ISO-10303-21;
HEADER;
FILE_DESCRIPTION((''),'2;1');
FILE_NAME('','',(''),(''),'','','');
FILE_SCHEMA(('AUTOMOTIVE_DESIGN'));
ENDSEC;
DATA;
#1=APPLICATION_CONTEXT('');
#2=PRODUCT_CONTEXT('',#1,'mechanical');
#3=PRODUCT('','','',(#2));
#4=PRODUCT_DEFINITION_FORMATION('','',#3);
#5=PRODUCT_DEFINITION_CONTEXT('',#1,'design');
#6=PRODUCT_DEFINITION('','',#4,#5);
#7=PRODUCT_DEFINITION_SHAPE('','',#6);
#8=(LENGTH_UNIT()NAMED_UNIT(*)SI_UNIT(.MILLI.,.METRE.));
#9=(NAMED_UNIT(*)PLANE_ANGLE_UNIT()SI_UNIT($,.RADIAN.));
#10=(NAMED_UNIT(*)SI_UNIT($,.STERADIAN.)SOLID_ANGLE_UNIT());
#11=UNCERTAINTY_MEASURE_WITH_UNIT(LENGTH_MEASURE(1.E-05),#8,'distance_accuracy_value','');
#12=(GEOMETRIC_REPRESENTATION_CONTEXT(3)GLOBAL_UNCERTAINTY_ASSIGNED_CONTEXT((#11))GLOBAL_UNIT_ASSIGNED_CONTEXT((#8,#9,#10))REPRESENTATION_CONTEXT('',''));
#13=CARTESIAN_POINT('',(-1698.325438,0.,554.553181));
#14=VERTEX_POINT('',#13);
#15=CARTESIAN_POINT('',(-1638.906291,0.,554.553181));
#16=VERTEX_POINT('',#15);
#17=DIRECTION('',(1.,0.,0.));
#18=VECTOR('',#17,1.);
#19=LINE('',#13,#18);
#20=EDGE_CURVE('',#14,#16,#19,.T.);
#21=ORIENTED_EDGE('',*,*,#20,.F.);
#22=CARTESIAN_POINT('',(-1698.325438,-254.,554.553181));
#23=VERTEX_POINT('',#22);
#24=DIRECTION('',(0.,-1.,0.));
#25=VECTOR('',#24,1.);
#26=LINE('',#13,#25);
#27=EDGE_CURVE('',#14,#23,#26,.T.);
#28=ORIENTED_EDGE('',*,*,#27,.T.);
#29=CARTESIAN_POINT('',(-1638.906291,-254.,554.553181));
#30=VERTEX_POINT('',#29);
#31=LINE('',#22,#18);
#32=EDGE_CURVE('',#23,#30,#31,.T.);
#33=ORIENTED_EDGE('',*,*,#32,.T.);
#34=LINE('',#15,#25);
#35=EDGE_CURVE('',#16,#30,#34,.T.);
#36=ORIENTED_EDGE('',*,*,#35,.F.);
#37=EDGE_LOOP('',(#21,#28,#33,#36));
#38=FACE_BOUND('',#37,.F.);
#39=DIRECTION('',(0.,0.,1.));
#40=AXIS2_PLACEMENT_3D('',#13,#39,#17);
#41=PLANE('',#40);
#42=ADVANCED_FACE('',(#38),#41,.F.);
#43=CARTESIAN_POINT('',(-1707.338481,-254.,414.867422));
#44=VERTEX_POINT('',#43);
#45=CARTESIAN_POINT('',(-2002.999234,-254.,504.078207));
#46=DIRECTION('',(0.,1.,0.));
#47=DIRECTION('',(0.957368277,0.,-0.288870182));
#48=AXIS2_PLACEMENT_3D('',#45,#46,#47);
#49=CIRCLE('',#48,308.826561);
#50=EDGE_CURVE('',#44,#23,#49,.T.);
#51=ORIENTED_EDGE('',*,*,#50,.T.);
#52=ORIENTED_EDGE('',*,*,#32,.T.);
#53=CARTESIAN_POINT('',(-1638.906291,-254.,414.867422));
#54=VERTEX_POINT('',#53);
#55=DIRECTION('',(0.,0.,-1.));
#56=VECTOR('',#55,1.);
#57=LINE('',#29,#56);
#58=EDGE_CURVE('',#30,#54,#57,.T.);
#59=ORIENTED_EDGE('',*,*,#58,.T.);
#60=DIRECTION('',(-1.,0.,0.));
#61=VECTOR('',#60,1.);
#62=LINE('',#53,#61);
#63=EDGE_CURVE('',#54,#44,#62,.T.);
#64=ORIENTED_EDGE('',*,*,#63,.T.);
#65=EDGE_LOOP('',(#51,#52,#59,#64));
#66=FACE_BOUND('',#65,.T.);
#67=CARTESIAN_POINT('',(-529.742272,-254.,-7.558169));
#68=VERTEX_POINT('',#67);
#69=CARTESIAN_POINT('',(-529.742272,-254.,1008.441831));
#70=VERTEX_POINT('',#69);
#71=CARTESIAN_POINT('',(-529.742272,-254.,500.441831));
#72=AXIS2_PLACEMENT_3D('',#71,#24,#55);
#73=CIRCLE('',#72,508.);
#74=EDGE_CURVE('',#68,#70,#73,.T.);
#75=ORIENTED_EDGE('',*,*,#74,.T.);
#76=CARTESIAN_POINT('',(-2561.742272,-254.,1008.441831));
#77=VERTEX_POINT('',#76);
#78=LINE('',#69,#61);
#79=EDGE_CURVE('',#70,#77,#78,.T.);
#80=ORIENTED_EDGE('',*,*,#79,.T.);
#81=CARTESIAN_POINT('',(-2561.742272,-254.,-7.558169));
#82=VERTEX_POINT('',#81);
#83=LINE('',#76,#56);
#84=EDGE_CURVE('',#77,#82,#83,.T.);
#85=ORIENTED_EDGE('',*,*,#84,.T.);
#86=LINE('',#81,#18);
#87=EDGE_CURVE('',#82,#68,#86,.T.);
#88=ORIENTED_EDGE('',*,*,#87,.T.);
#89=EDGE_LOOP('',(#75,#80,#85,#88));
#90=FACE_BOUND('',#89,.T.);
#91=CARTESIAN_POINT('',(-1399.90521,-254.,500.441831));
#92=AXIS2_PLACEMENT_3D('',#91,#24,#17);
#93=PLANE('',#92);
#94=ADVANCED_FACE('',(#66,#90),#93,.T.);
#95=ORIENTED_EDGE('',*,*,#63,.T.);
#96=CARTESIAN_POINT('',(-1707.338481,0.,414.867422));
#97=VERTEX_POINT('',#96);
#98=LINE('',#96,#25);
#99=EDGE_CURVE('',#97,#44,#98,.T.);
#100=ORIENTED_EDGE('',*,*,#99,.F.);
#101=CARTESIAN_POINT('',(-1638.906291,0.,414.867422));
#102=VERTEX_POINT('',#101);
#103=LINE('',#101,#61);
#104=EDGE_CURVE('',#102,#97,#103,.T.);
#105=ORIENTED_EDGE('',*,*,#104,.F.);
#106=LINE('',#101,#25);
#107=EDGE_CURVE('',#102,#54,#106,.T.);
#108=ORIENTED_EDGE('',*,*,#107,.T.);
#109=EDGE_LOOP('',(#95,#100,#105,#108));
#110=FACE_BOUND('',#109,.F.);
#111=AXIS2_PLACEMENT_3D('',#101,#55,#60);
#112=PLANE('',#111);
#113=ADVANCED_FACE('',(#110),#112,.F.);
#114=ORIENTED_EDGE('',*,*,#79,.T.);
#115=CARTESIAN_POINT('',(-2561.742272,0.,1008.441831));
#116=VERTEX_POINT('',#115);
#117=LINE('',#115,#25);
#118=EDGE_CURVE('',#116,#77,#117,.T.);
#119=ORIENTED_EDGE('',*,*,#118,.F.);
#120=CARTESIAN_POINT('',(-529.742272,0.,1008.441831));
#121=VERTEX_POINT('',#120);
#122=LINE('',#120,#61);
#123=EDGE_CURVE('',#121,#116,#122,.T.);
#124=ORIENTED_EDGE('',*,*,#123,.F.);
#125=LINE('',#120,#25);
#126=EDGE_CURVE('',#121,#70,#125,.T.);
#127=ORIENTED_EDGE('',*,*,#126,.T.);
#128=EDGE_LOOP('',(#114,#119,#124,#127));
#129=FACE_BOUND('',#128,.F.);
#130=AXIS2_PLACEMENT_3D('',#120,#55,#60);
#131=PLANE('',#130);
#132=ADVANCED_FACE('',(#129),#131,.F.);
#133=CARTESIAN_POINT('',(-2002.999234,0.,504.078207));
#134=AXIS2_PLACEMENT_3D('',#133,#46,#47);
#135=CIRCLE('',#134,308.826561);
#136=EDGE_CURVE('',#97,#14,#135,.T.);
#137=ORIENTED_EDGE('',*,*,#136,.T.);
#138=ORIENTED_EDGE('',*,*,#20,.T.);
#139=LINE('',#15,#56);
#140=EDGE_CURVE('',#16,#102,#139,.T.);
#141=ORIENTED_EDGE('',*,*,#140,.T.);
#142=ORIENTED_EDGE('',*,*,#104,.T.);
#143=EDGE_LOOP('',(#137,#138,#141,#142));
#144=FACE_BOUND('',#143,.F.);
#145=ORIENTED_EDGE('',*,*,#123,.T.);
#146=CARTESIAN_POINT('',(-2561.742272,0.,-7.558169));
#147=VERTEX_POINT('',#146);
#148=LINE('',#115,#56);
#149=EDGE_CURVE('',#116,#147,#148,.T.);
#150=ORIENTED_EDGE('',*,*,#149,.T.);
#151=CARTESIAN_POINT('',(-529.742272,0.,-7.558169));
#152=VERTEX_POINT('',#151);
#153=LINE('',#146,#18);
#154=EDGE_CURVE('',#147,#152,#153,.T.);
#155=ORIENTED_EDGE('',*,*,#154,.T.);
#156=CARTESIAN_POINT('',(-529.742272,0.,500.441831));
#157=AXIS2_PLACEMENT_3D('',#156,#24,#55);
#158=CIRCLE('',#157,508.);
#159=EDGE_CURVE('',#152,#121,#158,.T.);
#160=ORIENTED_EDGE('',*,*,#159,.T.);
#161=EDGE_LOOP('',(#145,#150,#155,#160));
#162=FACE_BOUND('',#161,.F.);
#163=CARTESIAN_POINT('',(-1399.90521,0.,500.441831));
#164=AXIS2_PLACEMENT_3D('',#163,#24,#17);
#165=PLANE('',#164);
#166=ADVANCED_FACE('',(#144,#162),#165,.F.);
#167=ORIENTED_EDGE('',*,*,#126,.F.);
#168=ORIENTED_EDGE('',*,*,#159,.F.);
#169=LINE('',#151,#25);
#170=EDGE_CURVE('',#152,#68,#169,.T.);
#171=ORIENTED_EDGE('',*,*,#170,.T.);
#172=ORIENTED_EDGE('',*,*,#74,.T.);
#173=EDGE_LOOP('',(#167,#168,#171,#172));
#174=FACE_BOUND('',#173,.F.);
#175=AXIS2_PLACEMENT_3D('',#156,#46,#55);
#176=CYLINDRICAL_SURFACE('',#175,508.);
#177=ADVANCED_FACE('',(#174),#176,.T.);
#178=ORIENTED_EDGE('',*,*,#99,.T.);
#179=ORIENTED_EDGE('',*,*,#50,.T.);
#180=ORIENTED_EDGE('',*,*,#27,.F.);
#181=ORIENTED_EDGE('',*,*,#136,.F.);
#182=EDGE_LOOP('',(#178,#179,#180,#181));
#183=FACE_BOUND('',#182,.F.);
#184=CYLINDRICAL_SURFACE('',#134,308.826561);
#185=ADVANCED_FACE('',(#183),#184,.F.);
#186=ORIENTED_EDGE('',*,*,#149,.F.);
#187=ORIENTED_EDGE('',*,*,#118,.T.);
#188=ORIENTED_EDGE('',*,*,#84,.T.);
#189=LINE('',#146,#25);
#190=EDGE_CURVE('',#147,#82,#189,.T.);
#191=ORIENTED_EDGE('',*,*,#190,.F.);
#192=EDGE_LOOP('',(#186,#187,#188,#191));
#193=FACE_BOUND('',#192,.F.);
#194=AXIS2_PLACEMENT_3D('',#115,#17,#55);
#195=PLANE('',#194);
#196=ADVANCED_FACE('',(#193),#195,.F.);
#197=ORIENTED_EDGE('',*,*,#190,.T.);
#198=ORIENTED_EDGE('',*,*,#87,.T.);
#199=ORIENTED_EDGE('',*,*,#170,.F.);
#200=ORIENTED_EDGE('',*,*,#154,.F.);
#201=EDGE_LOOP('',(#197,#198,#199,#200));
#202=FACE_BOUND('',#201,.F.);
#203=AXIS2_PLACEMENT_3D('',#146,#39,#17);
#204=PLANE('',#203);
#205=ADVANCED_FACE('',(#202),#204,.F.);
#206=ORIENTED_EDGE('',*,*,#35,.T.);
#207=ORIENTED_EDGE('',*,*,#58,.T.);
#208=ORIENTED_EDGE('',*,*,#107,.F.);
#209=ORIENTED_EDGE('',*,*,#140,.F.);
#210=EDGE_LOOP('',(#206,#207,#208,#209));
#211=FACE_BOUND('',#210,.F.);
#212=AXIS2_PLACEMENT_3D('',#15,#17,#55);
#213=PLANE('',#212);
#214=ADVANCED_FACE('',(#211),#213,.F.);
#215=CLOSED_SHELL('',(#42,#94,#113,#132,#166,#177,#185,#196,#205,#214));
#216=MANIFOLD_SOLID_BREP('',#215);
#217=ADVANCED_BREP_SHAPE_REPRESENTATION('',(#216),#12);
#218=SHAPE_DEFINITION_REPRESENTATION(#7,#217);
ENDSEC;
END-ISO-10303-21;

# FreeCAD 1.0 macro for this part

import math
import FreeCAD as App
import Part
import Sketcher

V = App.Vector
Q = App.Units.Quantity

doc = App.newDocument("Part")
body = doc.addObject("PartDesign::Body", "Body")

# Sketch on XZ plane
sketch1 = body.newObject("Sketcher::SketchObject", "Sketch")
sketch1.AttachmentSupport = (doc.getObject("XZ_Plane"), [""])
sketch1.MapMode = "FlatFace"
sketch1.addGeometry(Part.LineSegment(V(-2562, -8, 0), V(-530, -8, 0)), False)
sketch1.addGeometry(Part.ArcOfCircle(Part.Circle(V(-530, 500, 0), V(0, 0, 1), 508), math.radians(-90), math.radians(90)), False)
sketch1.addGeometry(Part.LineSegment(V(-530, 1008, 0), V(-2562, 1008, 0)), False)
sketch1.addGeometry(Part.LineSegment(V(-2562, 1008, 0), V(-2562, -8, 0)), False)
sketch1.addGeometry(Part.LineSegment(V(-1639, 415, 0), V(-1707, 415, 0)), False)
sketch1.addGeometry(Part.ArcOfCircle(Part.Circle(V(-2003, 504, 0), V(0, 0, 1), 309), math.radians(9), math.radians(343)), False)
sketch1.addGeometry(Part.LineSegment(V(-1698, 555, 0), V(-1639, 555, 0)), False)
sketch1.addGeometry(Part.LineSegment(V(-1639, 555, 0), V(-1639, 415, 0)), False)
sketch1.addConstraint(Sketcher.Constraint("Tangent", 0, 2, 1, 1))
sketch1.addConstraint(Sketcher.Constraint("Tangent", 1, 2, 2, 1))
sketch1.addConstraint(Sketcher.Constraint("Coincident", 2, 2, 3, 1))
sketch1.addConstraint(Sketcher.Constraint("Coincident", 3, 2, 0, 1))
sketch1.addConstraint(Sketcher.Constraint("Coincident", 4, 2, 5, 2))
sketch1.addConstraint(Sketcher.Constraint("Coincident", 5, 1, 6, 1))
sketch1.addConstraint(Sketcher.Constraint("Coincident", 6, 2, 7, 1))
sketch1.addConstraint(Sketcher.Constraint("Coincident", 7, 2, 4, 1))
sketch1.addConstraint(Sketcher.Constraint("Horizontal", 0))
sketch1.addConstraint(Sketcher.Constraint("Horizontal", 2))
sketch1.addConstraint(Sketcher.Constraint("Vertical", 3))
sketch1.addConstraint(Sketcher.Constraint("Horizontal", 4))
sketch1.addConstraint(Sketcher.Constraint("Horizontal", 6))
sketch1.addConstraint(Sketcher.Constraint("Vertical", 7))
sketch1.addConstraint(Sketcher.Constraint("Radius", 1, Q("20 in")))
sketch1.addConstraint(Sketcher.Constraint("DistanceX", 0, 1, 0, 2, Q("80 in")))
sketch1.addConstraint(Sketcher.Constraint("Radius", 5, Q("308.826561 mm")))
sketch1.addConstraint(Sketcher.Constraint("DistanceX", 4, 2, 4, 1, Q("68.43219 mm")))
sketch1.addConstraint(Sketcher.Constraint("DistanceY", 7, 2, 7, 1, Q("139.685759 mm")))
sketch1.addConstraint(Sketcher.Constraint("DistanceX", 6, 1, 6, 2, Q("59.419147 mm")))
sketch1.addConstraint(Sketcher.Constraint("DistanceX", 1, 3, -1, 1, Q("529.742272 mm")))
sketch1.addConstraint(Sketcher.Constraint("DistanceY", -1, 1, 1, 3, Q("500.441831 mm")))
sketch1.addConstraint(Sketcher.Constraint("DistanceX", 4, 2, -1, 1, Q("1707.338481 mm")))
sketch1.addConstraint(Sketcher.Constraint("DistanceY", -1, 1, 4, 2, Q("414.867422 mm")))
pad1 = body.newObject("PartDesign::Pad", "Pad")
pad1.Profile = sketch1
pad1.Length = Q("10 in")

doc.recompute()
